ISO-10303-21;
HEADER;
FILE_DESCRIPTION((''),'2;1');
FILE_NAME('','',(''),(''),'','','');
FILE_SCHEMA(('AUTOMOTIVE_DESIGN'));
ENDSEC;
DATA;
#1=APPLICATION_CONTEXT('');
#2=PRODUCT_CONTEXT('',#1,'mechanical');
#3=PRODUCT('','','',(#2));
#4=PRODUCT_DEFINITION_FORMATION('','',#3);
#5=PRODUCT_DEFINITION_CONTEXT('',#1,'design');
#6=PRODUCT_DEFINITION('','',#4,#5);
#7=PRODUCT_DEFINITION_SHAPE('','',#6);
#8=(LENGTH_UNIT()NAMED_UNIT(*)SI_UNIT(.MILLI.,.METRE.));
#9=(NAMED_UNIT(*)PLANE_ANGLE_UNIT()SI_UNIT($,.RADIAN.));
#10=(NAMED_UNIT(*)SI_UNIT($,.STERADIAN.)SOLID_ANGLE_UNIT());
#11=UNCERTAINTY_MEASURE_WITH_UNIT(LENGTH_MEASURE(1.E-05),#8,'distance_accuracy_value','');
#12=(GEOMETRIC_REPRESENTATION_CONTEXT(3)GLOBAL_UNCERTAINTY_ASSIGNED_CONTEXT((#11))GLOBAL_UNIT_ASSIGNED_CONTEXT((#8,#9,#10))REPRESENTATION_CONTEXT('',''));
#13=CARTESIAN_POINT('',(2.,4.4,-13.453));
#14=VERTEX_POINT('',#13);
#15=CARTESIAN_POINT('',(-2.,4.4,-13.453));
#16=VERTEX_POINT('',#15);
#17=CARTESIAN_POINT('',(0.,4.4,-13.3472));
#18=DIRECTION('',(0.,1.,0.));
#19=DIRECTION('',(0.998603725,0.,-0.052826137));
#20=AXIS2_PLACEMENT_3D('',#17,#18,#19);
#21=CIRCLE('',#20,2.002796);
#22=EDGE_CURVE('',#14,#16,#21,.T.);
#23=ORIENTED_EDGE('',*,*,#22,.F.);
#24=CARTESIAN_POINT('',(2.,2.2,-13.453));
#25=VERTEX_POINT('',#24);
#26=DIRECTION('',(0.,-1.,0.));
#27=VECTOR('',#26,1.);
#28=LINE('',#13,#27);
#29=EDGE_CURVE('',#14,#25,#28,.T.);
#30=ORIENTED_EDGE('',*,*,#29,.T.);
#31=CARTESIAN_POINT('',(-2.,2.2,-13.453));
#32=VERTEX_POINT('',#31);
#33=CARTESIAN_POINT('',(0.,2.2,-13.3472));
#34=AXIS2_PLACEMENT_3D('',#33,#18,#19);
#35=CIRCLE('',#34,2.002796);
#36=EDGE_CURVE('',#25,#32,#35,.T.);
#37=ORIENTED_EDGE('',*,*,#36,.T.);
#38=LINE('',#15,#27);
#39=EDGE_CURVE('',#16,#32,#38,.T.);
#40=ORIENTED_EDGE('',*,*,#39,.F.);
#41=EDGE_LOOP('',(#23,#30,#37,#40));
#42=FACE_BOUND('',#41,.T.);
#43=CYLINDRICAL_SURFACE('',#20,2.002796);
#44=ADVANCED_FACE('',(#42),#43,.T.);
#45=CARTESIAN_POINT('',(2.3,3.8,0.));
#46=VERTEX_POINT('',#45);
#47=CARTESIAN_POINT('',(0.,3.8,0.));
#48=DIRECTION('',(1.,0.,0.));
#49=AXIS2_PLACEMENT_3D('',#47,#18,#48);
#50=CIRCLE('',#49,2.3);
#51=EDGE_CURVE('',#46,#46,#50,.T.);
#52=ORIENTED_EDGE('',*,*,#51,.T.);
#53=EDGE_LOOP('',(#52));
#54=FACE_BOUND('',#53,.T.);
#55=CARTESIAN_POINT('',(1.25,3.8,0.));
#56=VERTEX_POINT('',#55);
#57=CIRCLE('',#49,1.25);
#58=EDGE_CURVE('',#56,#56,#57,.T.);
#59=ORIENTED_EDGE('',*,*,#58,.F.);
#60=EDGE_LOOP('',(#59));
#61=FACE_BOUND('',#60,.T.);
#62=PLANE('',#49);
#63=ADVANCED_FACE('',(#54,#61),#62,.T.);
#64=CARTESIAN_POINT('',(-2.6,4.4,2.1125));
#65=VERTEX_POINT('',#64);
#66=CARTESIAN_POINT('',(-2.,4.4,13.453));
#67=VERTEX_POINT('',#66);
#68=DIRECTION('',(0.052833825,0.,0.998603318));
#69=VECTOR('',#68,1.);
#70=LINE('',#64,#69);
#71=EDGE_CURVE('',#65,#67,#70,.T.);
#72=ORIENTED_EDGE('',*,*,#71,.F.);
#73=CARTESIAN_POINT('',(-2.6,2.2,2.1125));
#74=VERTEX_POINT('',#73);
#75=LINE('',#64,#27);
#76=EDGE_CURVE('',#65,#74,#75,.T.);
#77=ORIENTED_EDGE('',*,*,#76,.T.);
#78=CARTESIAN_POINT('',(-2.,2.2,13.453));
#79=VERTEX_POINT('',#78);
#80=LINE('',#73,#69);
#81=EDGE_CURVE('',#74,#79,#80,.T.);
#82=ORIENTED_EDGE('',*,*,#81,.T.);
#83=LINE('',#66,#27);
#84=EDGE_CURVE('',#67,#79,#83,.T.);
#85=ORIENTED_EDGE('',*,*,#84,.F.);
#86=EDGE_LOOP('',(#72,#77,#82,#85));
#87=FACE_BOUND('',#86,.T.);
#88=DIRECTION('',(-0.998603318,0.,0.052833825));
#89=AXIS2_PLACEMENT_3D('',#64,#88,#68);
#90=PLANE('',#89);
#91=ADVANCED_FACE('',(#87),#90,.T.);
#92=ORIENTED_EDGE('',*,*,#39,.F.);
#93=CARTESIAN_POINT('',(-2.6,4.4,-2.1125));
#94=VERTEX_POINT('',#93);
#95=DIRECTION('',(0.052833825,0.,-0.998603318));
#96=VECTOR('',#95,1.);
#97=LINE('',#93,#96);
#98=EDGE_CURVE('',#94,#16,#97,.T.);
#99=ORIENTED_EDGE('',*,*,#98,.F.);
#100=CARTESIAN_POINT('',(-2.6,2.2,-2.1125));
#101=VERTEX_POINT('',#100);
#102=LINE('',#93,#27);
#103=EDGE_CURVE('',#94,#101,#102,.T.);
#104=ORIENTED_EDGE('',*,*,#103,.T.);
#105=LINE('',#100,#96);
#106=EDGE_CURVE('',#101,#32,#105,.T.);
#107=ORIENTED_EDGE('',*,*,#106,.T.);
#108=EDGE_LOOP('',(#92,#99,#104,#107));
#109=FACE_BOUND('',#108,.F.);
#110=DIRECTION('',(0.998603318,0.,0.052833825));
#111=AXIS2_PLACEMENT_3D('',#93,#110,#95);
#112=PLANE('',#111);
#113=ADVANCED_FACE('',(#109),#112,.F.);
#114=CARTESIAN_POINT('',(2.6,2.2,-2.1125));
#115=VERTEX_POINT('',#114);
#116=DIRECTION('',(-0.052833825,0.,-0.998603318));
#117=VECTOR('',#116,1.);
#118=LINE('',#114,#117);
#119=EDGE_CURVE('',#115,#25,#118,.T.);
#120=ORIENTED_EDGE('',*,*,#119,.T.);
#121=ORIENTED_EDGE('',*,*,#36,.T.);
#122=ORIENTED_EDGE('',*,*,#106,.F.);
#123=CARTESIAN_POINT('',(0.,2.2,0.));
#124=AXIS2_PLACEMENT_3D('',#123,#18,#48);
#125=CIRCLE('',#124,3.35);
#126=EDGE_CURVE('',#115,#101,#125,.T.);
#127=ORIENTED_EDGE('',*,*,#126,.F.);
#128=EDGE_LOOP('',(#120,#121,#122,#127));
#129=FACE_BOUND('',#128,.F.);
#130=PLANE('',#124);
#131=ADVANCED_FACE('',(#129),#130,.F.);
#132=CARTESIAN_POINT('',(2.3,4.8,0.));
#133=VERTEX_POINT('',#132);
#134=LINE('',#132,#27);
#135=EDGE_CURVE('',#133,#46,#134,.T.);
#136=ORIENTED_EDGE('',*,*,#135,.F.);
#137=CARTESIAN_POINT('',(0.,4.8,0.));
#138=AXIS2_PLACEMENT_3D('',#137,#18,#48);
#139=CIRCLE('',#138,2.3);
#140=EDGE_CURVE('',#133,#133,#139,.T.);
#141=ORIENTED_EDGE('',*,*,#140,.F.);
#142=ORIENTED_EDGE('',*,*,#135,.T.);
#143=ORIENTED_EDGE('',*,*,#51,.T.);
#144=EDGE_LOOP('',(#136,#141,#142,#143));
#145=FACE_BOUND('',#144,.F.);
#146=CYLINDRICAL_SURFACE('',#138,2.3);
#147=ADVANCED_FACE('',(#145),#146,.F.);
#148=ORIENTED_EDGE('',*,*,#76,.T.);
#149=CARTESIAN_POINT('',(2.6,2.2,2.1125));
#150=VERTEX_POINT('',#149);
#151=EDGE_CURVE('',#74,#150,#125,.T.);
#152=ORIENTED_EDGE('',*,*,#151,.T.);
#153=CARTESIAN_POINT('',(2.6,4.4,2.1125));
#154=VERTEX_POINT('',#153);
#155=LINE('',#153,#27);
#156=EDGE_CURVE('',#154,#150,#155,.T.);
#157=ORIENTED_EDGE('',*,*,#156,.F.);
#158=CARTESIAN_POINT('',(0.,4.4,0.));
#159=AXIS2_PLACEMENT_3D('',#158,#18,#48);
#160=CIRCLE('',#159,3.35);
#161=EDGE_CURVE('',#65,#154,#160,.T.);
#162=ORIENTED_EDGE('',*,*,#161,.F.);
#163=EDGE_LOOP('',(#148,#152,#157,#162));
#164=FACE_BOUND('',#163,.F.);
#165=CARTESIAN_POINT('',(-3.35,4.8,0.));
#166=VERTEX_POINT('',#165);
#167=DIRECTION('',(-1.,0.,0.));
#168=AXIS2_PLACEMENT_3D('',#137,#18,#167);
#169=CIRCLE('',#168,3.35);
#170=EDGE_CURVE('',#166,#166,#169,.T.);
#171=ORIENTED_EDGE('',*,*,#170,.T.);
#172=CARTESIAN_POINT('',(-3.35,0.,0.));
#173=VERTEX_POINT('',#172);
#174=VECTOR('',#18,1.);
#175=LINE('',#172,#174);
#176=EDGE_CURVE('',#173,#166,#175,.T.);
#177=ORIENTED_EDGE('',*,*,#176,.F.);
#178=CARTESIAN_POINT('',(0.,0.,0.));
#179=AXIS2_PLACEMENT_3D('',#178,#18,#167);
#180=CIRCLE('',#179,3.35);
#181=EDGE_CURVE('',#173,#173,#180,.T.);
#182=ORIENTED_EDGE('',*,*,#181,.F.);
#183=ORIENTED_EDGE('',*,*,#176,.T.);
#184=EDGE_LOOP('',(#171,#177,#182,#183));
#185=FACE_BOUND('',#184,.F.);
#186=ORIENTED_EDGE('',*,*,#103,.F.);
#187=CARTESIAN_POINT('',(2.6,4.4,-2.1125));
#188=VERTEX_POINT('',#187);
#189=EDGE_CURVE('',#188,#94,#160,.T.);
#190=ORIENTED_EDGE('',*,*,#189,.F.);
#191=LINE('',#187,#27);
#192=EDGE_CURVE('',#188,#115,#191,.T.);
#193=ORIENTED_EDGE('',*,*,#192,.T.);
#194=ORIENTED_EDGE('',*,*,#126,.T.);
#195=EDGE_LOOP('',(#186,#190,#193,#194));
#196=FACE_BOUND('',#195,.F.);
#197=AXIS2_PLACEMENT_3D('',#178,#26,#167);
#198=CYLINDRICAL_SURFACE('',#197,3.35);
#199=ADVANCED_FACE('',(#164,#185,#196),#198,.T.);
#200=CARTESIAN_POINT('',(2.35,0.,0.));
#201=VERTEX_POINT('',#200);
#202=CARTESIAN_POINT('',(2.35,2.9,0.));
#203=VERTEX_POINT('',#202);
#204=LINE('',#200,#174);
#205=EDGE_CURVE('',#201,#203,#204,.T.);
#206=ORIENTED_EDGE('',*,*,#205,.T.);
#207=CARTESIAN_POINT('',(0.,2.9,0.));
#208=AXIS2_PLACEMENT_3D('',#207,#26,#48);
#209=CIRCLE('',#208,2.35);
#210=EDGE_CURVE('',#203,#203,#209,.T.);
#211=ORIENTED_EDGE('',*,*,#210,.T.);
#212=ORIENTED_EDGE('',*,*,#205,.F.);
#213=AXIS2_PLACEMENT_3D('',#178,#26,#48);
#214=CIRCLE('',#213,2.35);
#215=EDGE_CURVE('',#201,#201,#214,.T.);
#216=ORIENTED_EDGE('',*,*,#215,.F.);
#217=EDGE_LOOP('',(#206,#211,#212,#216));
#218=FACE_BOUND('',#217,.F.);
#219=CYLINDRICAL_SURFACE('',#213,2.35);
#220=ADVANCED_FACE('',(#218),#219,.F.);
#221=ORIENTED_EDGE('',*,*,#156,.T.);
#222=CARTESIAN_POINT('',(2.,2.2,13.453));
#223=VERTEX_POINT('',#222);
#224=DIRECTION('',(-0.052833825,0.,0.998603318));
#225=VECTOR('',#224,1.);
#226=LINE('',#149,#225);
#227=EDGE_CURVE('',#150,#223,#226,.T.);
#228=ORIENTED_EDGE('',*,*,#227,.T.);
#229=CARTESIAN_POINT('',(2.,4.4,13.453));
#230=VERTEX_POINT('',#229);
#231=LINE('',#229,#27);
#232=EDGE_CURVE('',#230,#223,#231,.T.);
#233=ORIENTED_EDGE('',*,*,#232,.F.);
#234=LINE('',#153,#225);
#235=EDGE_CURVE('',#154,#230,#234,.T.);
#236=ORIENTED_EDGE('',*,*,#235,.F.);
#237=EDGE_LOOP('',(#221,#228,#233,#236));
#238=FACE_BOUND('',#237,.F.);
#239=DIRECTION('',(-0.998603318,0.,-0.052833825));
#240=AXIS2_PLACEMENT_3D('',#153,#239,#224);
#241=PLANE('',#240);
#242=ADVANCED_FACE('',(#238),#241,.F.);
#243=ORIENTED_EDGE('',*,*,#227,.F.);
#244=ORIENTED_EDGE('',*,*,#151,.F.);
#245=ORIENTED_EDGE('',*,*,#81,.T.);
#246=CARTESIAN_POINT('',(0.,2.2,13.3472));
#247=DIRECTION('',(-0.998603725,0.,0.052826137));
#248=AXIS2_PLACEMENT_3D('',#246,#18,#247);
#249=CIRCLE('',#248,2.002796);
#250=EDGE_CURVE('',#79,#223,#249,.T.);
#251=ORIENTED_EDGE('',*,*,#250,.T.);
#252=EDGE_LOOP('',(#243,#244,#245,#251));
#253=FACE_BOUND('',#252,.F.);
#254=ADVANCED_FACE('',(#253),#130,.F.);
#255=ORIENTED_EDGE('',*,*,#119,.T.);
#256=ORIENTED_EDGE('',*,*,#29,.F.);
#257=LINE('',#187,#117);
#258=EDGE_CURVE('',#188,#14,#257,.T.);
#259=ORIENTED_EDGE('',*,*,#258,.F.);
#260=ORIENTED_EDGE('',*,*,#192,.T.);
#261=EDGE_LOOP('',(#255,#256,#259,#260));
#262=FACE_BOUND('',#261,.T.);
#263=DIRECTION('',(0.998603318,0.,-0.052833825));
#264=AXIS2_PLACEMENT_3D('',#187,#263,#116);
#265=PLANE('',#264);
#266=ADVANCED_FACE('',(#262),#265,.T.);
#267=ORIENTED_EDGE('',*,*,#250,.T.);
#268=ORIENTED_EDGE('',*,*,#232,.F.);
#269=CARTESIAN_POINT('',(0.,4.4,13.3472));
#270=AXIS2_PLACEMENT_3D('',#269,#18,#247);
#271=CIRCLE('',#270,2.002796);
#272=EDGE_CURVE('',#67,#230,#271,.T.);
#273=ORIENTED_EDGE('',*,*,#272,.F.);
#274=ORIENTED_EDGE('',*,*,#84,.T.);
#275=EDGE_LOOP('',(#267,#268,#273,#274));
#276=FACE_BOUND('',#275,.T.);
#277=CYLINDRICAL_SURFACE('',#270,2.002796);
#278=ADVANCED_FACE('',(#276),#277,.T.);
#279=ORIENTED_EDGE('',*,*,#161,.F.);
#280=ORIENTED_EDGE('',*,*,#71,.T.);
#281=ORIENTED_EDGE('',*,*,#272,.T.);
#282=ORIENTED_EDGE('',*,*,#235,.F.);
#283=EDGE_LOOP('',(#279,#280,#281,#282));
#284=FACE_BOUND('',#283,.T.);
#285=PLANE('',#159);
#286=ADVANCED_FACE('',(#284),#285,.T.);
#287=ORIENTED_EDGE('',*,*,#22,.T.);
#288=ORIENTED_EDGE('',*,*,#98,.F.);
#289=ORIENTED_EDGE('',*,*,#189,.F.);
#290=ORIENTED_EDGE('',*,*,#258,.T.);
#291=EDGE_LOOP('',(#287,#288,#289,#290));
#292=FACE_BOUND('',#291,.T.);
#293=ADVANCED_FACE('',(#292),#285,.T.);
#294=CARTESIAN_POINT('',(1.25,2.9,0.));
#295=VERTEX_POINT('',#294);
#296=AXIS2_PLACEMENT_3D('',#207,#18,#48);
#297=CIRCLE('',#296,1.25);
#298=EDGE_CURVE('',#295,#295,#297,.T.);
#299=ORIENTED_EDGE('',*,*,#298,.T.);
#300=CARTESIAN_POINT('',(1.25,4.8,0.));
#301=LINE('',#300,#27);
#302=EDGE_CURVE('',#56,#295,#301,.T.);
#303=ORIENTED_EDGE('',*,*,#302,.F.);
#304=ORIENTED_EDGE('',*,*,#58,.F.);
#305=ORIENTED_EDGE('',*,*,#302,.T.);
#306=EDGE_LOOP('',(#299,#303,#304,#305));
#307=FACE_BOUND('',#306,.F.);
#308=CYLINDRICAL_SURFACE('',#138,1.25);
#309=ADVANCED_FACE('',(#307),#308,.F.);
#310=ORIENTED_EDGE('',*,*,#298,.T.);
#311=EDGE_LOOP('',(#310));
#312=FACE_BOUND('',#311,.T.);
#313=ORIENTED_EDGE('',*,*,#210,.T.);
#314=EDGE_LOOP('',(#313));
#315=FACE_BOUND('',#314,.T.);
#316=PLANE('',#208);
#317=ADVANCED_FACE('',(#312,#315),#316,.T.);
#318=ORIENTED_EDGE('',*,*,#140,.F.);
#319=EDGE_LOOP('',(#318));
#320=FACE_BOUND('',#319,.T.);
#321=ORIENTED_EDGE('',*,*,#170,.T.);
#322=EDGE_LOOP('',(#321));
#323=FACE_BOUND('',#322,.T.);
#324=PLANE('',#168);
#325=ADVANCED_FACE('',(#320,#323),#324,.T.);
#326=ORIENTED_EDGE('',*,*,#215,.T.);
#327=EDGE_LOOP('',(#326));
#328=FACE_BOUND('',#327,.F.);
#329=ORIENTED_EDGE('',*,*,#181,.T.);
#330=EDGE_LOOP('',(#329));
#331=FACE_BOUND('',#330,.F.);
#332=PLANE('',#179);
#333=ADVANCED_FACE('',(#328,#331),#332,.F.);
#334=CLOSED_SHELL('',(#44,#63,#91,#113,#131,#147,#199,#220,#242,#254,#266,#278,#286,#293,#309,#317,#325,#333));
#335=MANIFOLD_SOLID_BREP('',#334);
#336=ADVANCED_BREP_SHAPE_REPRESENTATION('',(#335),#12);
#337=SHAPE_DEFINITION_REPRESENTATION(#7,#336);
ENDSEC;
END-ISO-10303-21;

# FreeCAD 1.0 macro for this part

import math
import FreeCAD as App
import Part
import Sketcher

V = App.Vector
Q = App.Units.Quantity

doc = App.newDocument("Part")
params = doc.addObject("Spreadsheet::Sheet", "Params")
for row, (alias, value) in enumerate([
    ("sketch1_diameter", "6.7 mm"),
    ("pad1_length", "4.8 mm"),
    ("sketch2_radius", "3.35 mm"),
    ("pad2_length", "2.2 mm"),
    ("sketch3_diameter", "2.5 mm"),
    ("sketch4_diameter", "4.6 mm"),
    ("sketch4_diameter2", "2.5 mm"),
    ("pocket2_length", "1 mm"),
    ("sketch5_diameter", "4.7 mm"),
    ("pocket3_length", "2.9 mm"),
], start=1):
    params.set(f"A{row}", alias)
    params.set(f"B{row}", "=" + value)
    params.setAlias(f"B{row}", alias)

body = doc.addObject("PartDesign::Body", "Body")

# Sketch on XZ plane
sketch1 = doc.addObject("Sketcher::SketchObject", "Sketch")
body.addObject(sketch1)
sketch1.AttachmentSupport = (doc.XZ_Plane, [""])
sketch1.MapMode = "FlatFace"
sketch1.addGeometry(Part.Circle(V(0, 0, 0), V(0, 0, 1), 3.4), False)
sketch1.addConstraint([
    Sketcher.Constraint("Coincident", 0, 3, -1, 1),
    Sketcher.Constraint("Diameter", 0, Q("6.7 mm")),
])
sketch1.setExpression("Constraints[1]", "Params.sketch1_diameter")
pad1 = doc.addObject("PartDesign::Pad", "Pad")
body.addObject(pad1)
pad1.Profile = sketch1
pad1.setExpression("Length", "Params.pad1_length")
pad1.Reversed = True

# Sketch on XZ plane
sketch2 = doc.addObject("Sketcher::SketchObject", "Sketch001")
body.addObject(sketch2)
sketch2.AttachmentSupport = (doc.XZ_Plane, [""])
sketch2.MapMode = "FlatFace"
sketch2.AttachmentOffset = App.Placement(V(0, 0, -4.4), App.Rotation())
sketch2.addGeometry([
    Part.ArcOfCircle(Part.Circle(V(0, 0, 0), V(0, 0, 1), 3.4), math.radians(-141), math.radians(-39)),  # 0
    Part.LineSegment(V(2.6, -2.1, 0), V(2, -13.5, 0)),  # 1
    Part.ArcOfCircle(Part.Circle(V(0, -13.3, 0), V(0, 0, 1), 2), math.radians(-177), math.radians(-3)),  # 2
    Part.LineSegment(V(-2, -13.5, 0), V(-2.6, -2.1, 0)),  # 3
    Part.LineSegment(V(2, 13.5, 0), V(2.6, 2.1, 0)),  # 4
    Part.ArcOfCircle(Part.Circle(V(0, 0, 0), V(0, 0, 1), 3.4), math.radians(39), math.radians(141)),  # 5
    Part.LineSegment(V(-2.6, 2.1, 0), V(-2, 13.5, 0)),  # 6
    Part.ArcOfCircle(Part.Circle(V(0, 13.3, 0), V(0, 0, 1), 2), math.radians(3), math.radians(177)),  # 7
], False)
sketch2.addConstraint([
    Sketcher.Constraint("Coincident", 0, 2, 1, 1),
    Sketcher.Constraint("Tangent", 1, 2, 2, 2),
    Sketcher.Constraint("Tangent", 2, 1, 3, 1),
    Sketcher.Constraint("Coincident", 3, 2, 0, 1),
    Sketcher.Constraint("Coincident", 4, 2, 5, 1),
    Sketcher.Constraint("Coincident", 5, 2, 6, 1),
    Sketcher.Constraint("Tangent", 6, 2, 7, 2),
    Sketcher.Constraint("Tangent", 7, 1, 4, 1),
    Sketcher.Constraint("Coincident", 0, 3, -1, 1),
    Sketcher.Constraint("Coincident", 5, 3, -1, 1),
    Sketcher.Constraint("Equal", 0, 5),
    Sketcher.Constraint("Equal", 2, 7),
    Sketcher.Constraint("Symmetric", 2, 3, 7, 3, -1, 1),
    Sketcher.Constraint("Symmetric", 1, 2, 2, 1, -2),
    Sketcher.Constraint("Parallel", 3, 4),
    Sketcher.Constraint("Parallel", 1, 6),
    Sketcher.Constraint("DistanceX", 2, 1, 1, 2, Q("4 mm")),
    Sketcher.Constraint("DistanceX", 3, 2, 0, 2, Q("5.2 mm")),
    Sketcher.Constraint("Radius", 0, Q("3.35 mm")),
    Sketcher.Constraint("DistanceY", 1, 2, -1, 1, Q("13.453 mm")),
])
sketch2.setExpression("Constraints[18]", "Params.sketch2_radius")
pad2 = doc.addObject("PartDesign::Pad", "Pad001")
body.addObject(pad2)
pad2.Profile = sketch2
pad2.setExpression("Length", "Params.pad2_length")

# Sketch on XZ plane
sketch3 = doc.addObject("Sketcher::SketchObject", "Sketch002")
body.addObject(sketch3)
sketch3.AttachmentSupport = (doc.XZ_Plane, [""])
sketch3.MapMode = "FlatFace"
sketch3.AttachmentOffset = App.Placement(V(0, 0, -4.8), App.Rotation())
sketch3.addGeometry(Part.Circle(V(0, 0, 0), V(0, 0, 1), 1.2), False)
sketch3.addConstraint([
    Sketcher.Constraint("Coincident", 0, 3, -1, 1),
    Sketcher.Constraint("Diameter", 0, Q("2.5 mm")),
])
sketch3.setExpression("Constraints[1]", "Params.sketch3_diameter")
pocket1 = doc.addObject("PartDesign::Pocket", "Pocket")
body.addObject(pocket1)
pocket1.Profile = sketch3
pocket1.Type = "ThroughAll"
pocket1.Reversed = True

# Sketch on XZ plane
sketch4 = doc.addObject("Sketcher::SketchObject", "Sketch003")
body.addObject(sketch4)
sketch4.AttachmentSupport = (doc.XZ_Plane, [""])
sketch4.MapMode = "FlatFace"
sketch4.AttachmentOffset = App.Placement(V(0, 0, -4.8), App.Rotation())
sketch4.addGeometry([
    Part.Circle(V(0, 0, 0), V(0, 0, 1), 2.3),
    Part.Circle(V(0, 0, 0), V(0, 0, 1), 1.2),
], False)
sketch4.addConstraint([
    Sketcher.Constraint("Coincident", 0, 3, -1, 1),
    Sketcher.Constraint("Coincident", 1, 3, -1, 1),
    Sketcher.Constraint("Diameter", 0, Q("4.6 mm")),
    Sketcher.Constraint("Diameter", 1, Q("2.5 mm")),
])
sketch4.setExpression("Constraints[2]", "Params.sketch4_diameter")
sketch4.setExpression("Constraints[3]", "Params.sketch4_diameter2")
pocket2 = doc.addObject("PartDesign::Pocket", "Pocket001")
body.addObject(pocket2)
pocket2.Profile = sketch4
pocket2.setExpression("Length", "Params.pocket2_length")
pocket2.Reversed = True

# Sketch on XZ plane
sketch5 = doc.addObject("Sketcher::SketchObject", "Sketch004")
body.addObject(sketch5)
sketch5.AttachmentSupport = (doc.XZ_Plane, [""])
sketch5.MapMode = "FlatFace"
sketch5.addGeometry(Part.Circle(V(0, 0, 0), V(0, 0, 1), 2.4), False)
sketch5.addConstraint([
    Sketcher.Constraint("Coincident", 0, 3, -1, 1),
    Sketcher.Constraint("Diameter", 0, Q("4.7 mm")),
])
sketch5.setExpression("Constraints[1]", "Params.sketch5_diameter")
pocket3 = doc.addObject("PartDesign::Pocket", "Pocket002")
body.addObject(pocket3)
pocket3.Profile = sketch5
pocket3.setExpression("Length", "Params.pocket3_length")

doc.recompute()
